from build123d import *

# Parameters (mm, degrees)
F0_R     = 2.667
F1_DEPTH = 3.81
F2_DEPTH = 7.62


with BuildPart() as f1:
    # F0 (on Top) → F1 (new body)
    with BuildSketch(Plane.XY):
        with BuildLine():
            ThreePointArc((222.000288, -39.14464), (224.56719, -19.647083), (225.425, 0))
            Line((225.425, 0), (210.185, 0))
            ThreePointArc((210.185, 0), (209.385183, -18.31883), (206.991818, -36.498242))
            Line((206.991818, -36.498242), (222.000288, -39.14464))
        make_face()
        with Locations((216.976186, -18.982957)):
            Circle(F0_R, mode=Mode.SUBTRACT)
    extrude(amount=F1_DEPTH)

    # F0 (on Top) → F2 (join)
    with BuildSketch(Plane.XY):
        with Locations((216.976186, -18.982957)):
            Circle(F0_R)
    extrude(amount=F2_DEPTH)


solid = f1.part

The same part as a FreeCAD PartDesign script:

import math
import FreeCAD as App
import Part
import Sketcher

V = App.Vector
Q = App.Units.Quantity

doc = App.newDocument("Part")
params = doc.addObject("Spreadsheet::Sheet", "Params")
for row, (alias, value) in enumerate([
    ("sketch1_diameter", "0.21 in"),
    ("sketch1_width", "0.6 in"),
    ("sketch1_length", "0.6 in"),
    ("pad1_length", "0.15 in"),
    ("sketch2_diameter", "0.21 in"),
    ("pad2_length", "0.3 in"),
], start=1):
    params.set(f"A{row}", alias)
    params.set(f"B{row}", "=" + value)
    params.setAlias(f"B{row}", alias)

body = doc.addObject("PartDesign::Body", "Body")

# Sketch on XY plane
sketch1 = body.newObject("Sketcher::SketchObject", "Sketch")
sketch1.AttachmentSupport = (doc.getObject("XY_Plane"), [""])
sketch1.MapMode = "FlatFace"
sketch1.addGeometry(Part.ArcOfCircle(Part.Circle(V(0.000015, -0.000002, 0), V(0, 0, 1), 225.424985), math.radians(-10), math.radians(0.000001)), False)
sketch1.addGeometry(Part.LineSegment(V(225.425, 0, 0), V(210.185, 0, 0)), False)
sketch1.addGeometry(Part.ArcOfCircle(Part.Circle(V(0.000053, -0.000007, 0), V(0, 0, 1), 210.184947), math.radians(-10.000001), math.radians(0.000002)), False)
sketch1.addGeometry(Part.LineSegment(V(206.991818, -36.498242, 0), V(222.000288, -39.14464, 0)), False)
sketch1.addGeometry(Part.Circle(V(216.976186, -18.982957, 0), V(0, 0, 1), 2.667), False)
sketch1.addConstraint(Sketcher.Constraint("Coincident", 0, 2, 1, 1))
sketch1.addConstraint(Sketcher.Constraint("Coincident", 1, 2, 2, 2))
sketch1.addConstraint(Sketcher.Constraint("Coincident", 2, 1, 3, 1))
sketch1.addConstraint(Sketcher.Constraint("Coincident", 3, 2, 0, 1))
sketch1.addConstraint(Sketcher.Constraint("Horizontal", 1))
sketch1.addConstraint(Sketcher.Constraint("PointOnObject", 0, 2, -1))
sketch1.addConstraint(Sketcher.Constraint("Diameter", 4, Q("0.21 in")))
sketch1.addConstraint(Sketcher.Constraint("DistanceX", 1, 2, 1, 1, Q("0.6 in")))
sketch1.addConstraint(Sketcher.Constraint("Angle", 3, Q("-9.999999 deg")))
sketch1.addConstraint(Sketcher.Constraint("Distance", 3, Q("0.6 in")))
sketch1.addConstraint(Sketcher.Constraint("DistanceX", -1, 1, 0, 2, Q("8.875 in")))
sketch1.addConstraint(Sketcher.Constraint("Radius", 0, 225.424985))
sketch1.addConstraint(Sketcher.Constraint("Radius", 2, 210.184947))
sketch1.addConstraint(Sketcher.Constraint("DistanceX", 4, 3, 3, 2, 5.024102))
sketch1.addConstraint(Sketcher.Constraint("DistanceX", -1, 1, 2, 1, 206.991818))
sketch1.addConstraint(Sketcher.Constraint("DistanceY", 3, 2, -1, 1, 39.14464))
sketch1.addConstraint(Sketcher.Constraint("DistanceY", 4, 3, 2, 3, 18.98295))
sketch1.setExpression("Constraints[6]", "Params.sketch1_diameter")
sketch1.setExpression("Constraints[7]", "Params.sketch1_width")
sketch1.setExpression("Constraints[9]", "Params.sketch1_length")
pad1 = body.newObject("PartDesign::Pad", "Pad")
pad1.Profile = sketch1
pad1.setExpression("Length", "Params.pad1_length")

# Sketch on XY plane
sketch2 = body.newObject("Sketcher::SketchObject", "Sketch001")
sketch2.AttachmentSupport = (doc.getObject("XY_Plane"), [""])
sketch2.MapMode = "FlatFace"
sketch2.addGeometry(Part.Circle(V(216.976186, -18.982957, 0), V(0, 0, 1), 2.667), False)
sketch2.addConstraint(Sketcher.Constraint("Diameter", 0, Q("0.21 in")))
sketch2.addConstraint(Sketcher.Constraint("DistanceX", -1, 1, 0, 3, 216.976186))
sketch2.addConstraint(Sketcher.Constraint("DistanceY", 0, 3, -1, 1, 18.982957))
sketch2.setExpression("Constraints[0]", "Params.sketch2_diameter")
pad2 = body.newObject("PartDesign::Pad", "Pad001")
pad2.Profile = sketch2
pad2.setExpression("Length", "Params.pad2_length")

doc.recompute()
